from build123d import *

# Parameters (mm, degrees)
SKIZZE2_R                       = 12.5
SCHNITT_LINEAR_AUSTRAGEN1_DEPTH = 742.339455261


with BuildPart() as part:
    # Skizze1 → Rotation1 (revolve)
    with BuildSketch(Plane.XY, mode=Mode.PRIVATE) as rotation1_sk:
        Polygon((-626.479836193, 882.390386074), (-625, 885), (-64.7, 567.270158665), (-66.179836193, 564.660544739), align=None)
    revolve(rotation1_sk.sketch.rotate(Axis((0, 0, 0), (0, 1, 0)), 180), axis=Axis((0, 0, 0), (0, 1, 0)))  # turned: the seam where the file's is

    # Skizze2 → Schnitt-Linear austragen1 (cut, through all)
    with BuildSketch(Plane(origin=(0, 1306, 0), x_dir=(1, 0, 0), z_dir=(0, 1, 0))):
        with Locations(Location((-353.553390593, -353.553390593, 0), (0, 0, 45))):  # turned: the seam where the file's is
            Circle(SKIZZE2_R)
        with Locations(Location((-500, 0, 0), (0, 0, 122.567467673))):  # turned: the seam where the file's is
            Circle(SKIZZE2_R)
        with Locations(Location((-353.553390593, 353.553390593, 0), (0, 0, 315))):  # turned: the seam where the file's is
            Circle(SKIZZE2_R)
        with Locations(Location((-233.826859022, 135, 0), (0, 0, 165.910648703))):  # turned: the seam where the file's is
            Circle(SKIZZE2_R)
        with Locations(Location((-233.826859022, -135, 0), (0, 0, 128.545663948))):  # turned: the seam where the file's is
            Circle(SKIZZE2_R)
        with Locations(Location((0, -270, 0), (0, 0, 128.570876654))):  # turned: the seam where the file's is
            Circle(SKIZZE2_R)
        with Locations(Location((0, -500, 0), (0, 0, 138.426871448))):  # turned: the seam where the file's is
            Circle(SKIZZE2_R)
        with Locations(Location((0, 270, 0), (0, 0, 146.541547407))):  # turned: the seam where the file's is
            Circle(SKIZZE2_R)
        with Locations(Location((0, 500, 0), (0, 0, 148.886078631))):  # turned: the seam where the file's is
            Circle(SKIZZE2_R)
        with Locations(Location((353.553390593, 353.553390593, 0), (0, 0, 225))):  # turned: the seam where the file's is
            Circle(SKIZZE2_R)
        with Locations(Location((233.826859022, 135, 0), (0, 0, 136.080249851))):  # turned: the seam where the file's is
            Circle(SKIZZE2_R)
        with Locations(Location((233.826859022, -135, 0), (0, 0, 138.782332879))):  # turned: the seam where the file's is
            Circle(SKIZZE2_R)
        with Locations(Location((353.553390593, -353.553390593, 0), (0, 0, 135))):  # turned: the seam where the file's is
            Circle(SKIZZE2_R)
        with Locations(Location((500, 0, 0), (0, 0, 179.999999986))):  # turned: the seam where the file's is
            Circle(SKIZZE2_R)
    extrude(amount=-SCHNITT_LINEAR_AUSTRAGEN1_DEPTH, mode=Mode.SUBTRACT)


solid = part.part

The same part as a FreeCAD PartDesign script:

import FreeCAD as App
import Part
import Sketcher
Q = App.Units.Quantity


def add_polygon(sketch, points):
    """Adds a closed chain of lines whose ends are joined by coincident constraints."""
    first, n = sketch.GeometryCount, len(points)
    for a, b in zip(points, points[1:] + points[:1]):
        sketch.addGeometry(Part.LineSegment(App.Vector(*a, 0), App.Vector(*b, 0)), False)
    for i in range(n):
        sketch.addConstraint(Sketcher.Constraint("Coincident", first + i, 2, first + (i + 1) % n, 1))

doc = App.newDocument("Part")
params = doc.addObject("Spreadsheet::Sheet", "Params")
for row, (alias, value) in enumerate([
    ("sketch1_length", "3 mm"),
    ("revolution_angle", "360 deg"),
    ("sketch2_diameter", "25 mm"),
], start=1):
    params.set(f"A{row}", alias)
    params.set(f"B{row}", "=" + value)
    params.setAlias(f"B{row}", alias)

body = doc.addObject("PartDesign::Body", "Body")

sketch1 = doc.addObject("Sketcher::SketchObject", "Sketch")
body.addObject(sketch1)
sketch1.AttachmentSupport = (doc.XY_Plane, [""])
sketch1.MapMode = "FlatFace"
add_polygon(sketch1, [(-625, 885), (-626.5, 882.4), (-66.2, 564.7), (-64.7, 567.3)])
sketch1.addConstraint([
    Sketcher.Constraint("Perpendicular", 0, 1),
    Sketcher.Constraint("Perpendicular", 1, 2),
    Sketcher.Constraint("Perpendicular", 2, 3),
    Sketcher.Constraint("Distance", 0, Q("3 mm")),
    Sketcher.Constraint("DistanceX", 3, 2, -1, 1, Q("625 mm")),
    Sketcher.Constraint("DistanceY", -1, 1, 3, 2, Q("885 mm")),
    Sketcher.Constraint("DistanceX", 2, 2, -1, 1, Q("64.7 mm")),
    Sketcher.Constraint("DistanceY", -1, 1, 2, 2, Q("567.270159 mm")),
])
sketch1.setExpression("Constraints[7]", "Params.sketch1_length")
revolution = doc.addObject("PartDesign::Revolution", "Revolution")
body.addObject(revolution)
revolution.Profile = sketch1
revolution.ReferenceAxis = (sketch1, ["V_Axis"])
revolution.setExpression("Angle", "Params.revolution_angle")

sketch2 = doc.addObject("Sketcher::SketchObject", "Sketch001")
body.addObject(sketch2)
sketch2.AttachmentSupport = (doc.XZ_Plane, [""])
sketch2.MapMode = "FlatFace"
sketch2.AttachmentOffset = App.Placement(App.Vector(0, 0, -1306), App.Rotation())
sketch2.addGeometry([
    Part.Circle(App.Vector(-354, 354, 0), App.Vector(0, 0, 1), 12),
    Part.Circle(App.Vector(-500, 0, 0), App.Vector(0, 0, 1), 12),
    Part.Circle(App.Vector(-354, -354, 0), App.Vector(0, 0, 1), 12),
    Part.Circle(App.Vector(-234, -135, 0), App.Vector(0, 0, 1), 12),
    Part.Circle(App.Vector(-234, 135, 0), App.Vector(0, 0, 1), 12),
    Part.Circle(App.Vector(0, 270, 0), App.Vector(0, 0, 1), 12),
    Part.Circle(App.Vector(0, 500, 0), App.Vector(0, 0, 1), 12),
    Part.Circle(App.Vector(0, -270, 0), App.Vector(0, 0, 1), 12),
    Part.Circle(App.Vector(0, -500, 0), App.Vector(0, 0, 1), 12),
    Part.Circle(App.Vector(354, -354, 0), App.Vector(0, 0, 1), 12),
    Part.Circle(App.Vector(234, -135, 0), App.Vector(0, 0, 1), 12),
    Part.Circle(App.Vector(234, 135, 0), App.Vector(0, 0, 1), 12),
    Part.Circle(App.Vector(354, 354, 0), App.Vector(0, 0, 1), 12),
    Part.Circle(App.Vector(500, 0, 0), App.Vector(0, 0, 1), 12),
], False)
sketch2.addConstraint([
    Sketcher.Constraint("Equal", 0, 1),
    Sketcher.Constraint("Equal", 1, 2),
    Sketcher.Constraint("Equal", 2, 3),
    Sketcher.Constraint("Equal", 3, 4),
    Sketcher.Constraint("Equal", 4, 5),
    Sketcher.Constraint("Equal", 5, 6),
    Sketcher.Constraint("Equal", 6, 7),
    Sketcher.Constraint("Equal", 7, 8),
    Sketcher.Constraint("Equal", 8, 9),
    Sketcher.Constraint("Equal", 9, 10),
    Sketcher.Constraint("Equal", 10, 11),
    Sketcher.Constraint("Equal", 11, 12),
    Sketcher.Constraint("Equal", 12, 13),
    Sketcher.Constraint("Symmetric", 5, 3, 7, 3, -1, 1),
    Sketcher.Constraint("Symmetric", 6, 3, 8, 3, -1, 1),
    Sketcher.Constraint("Symmetric", 0, 3, 9, 3, -1, 1),
    Sketcher.Constraint("Symmetric", 4, 3, 10, 3, -1, 1),
    Sketcher.Constraint("Symmetric", 3, 3, 11, 3, -1, 1),
    Sketcher.Constraint("Symmetric", 2, 3, 12, 3, -1, 1),
    Sketcher.Constraint("Symmetric", 1, 3, 13, 3, -1, 1),
    Sketcher.Constraint("Symmetric", 2, 3, 9, 3, -2),
    Sketcher.Constraint("Symmetric", 3, 3, 10, 3, -2),
    Sketcher.Constraint("PointOnObject", 1, 3, -1),
    Sketcher.Constraint("PointOnObject", 5, 3, -2),
    Sketcher.Constraint("PointOnObject", 6, 3, -2),
    Sketcher.Constraint("Diameter", 0, Q("25 mm")),
    Sketcher.Constraint("DistanceX", 1, 3, -1, 1, Q("500 mm")),
    Sketcher.Constraint("DistanceY", 3, 3, -1, 1, Q("135 mm")),
    Sketcher.Constraint("DistanceY", -1, 1, 5, 3, Q("270 mm")),
    Sketcher.Constraint("DistanceY", -1, 1, 6, 3, Q("500 mm")),
    Sketcher.Constraint("DistanceX", 0, 3, -1, 1, Q("353.553391 mm")),
    Sketcher.Constraint("DistanceY", -1, 1, 0, 3, Q("353.553391 mm")),
    Sketcher.Constraint("DistanceX", 3, 3, -1, 1, Q("233.826859 mm")),
])
sketch2.setExpression("Constraints[25]", "Params.sketch2_diameter")
pocket1 = doc.addObject("PartDesign::Pocket", "Pocket")
body.addObject(pocket1)
pocket1.Profile = sketch2
pocket1.Type = "ThroughAll"
pocket1.Reversed = True

doc.recompute()
